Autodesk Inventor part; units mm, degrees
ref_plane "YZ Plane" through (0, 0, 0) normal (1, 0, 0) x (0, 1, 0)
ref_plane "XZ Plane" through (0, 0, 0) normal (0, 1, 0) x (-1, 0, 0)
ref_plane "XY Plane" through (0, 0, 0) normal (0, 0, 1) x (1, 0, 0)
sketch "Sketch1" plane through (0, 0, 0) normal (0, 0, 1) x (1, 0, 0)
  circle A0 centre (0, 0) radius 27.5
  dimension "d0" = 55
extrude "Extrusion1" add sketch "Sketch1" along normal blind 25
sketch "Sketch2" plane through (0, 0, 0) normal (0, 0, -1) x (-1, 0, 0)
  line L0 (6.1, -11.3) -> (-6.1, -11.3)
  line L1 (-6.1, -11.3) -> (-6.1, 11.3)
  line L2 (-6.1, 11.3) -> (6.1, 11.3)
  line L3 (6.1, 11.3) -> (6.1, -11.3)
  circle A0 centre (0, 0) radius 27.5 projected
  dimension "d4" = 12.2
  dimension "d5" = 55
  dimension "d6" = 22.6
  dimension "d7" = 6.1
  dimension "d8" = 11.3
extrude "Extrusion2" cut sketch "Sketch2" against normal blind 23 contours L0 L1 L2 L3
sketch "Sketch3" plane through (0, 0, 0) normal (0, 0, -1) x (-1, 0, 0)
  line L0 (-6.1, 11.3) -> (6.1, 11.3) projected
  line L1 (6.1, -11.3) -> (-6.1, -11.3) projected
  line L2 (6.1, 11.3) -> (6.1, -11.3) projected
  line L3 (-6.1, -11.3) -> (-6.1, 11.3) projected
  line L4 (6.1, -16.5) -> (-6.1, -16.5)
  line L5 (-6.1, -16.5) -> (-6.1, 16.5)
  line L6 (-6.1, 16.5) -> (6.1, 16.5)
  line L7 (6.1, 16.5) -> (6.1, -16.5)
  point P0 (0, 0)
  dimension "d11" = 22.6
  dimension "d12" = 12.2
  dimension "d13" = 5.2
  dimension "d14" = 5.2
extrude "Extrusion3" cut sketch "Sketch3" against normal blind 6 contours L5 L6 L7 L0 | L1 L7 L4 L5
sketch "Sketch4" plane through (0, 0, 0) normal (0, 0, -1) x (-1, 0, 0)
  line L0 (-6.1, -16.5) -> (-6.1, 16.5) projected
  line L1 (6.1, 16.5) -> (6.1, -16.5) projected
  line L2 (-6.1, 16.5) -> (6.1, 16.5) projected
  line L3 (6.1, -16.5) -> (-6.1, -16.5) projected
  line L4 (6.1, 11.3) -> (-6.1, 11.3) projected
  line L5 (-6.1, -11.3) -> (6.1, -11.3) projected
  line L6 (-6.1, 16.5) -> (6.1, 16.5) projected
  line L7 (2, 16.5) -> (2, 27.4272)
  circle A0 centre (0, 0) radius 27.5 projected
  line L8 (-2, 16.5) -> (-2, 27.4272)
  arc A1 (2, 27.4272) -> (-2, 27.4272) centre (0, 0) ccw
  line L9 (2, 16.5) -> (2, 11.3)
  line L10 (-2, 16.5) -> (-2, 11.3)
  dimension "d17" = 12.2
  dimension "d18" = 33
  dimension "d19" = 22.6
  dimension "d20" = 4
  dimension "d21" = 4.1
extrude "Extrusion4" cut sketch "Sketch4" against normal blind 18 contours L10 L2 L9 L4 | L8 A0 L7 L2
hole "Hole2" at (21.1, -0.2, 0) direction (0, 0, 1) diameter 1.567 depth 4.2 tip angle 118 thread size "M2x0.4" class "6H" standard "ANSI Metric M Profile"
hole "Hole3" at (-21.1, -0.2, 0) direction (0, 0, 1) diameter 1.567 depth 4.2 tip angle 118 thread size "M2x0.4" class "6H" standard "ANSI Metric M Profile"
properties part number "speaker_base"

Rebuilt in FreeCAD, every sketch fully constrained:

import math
import FreeCAD as App
import Part
import Sketcher
from FreeCAD import Vector
Q = App.Units.Quantity


def add_polygon(sketch, points):
    """Adds a closed chain of lines whose ends are joined by coincident constraints."""
    first, n = sketch.GeometryCount, len(points)
    for a, b in zip(points, points[1:] + points[:1]):
        sketch.addGeometry(Part.LineSegment(App.Vector(*a, 0), App.Vector(*b, 0)), False)
    for i in range(n):
        sketch.addConstraint(Sketcher.Constraint("Coincident", first + i, 2, first + (i + 1) % n, 1))

doc = App.newDocument("Part")
body = doc.addObject("PartDesign::Body", "Body")

sketch1 = body.newObject("Sketcher::SketchObject", "Sketch")
sketch1.AttachmentSupport = (doc.getObject("XY_Plane"), [""])
sketch1.MapMode = "FlatFace"
sketch1.addGeometry(Part.Circle(Vector(0, 0, 0), Vector(0, 0, 1), 27.5), False)
sketch1.addConstraint([
    Sketcher.Constraint("Coincident", 0, 3, -1, 1),
    Sketcher.Constraint("Diameter", 0, Q("55 mm")),
])
pad1 = body.newObject("PartDesign::Pad", "Pad")
pad1.Profile = sketch1
pad1.Length = 25

sketch2 = body.newObject("Sketcher::SketchObject", "Sketch001")
sketch2.AttachmentSupport = (doc.getObject("XY_Plane"), [""])
sketch2.MapMode = "FlatFace"
add_polygon(sketch2, [(6.1, -11.3), (-6.1, -11.3), (-6.1, 11.3), (6.1, 11.3)])
sketch2.addConstraint([
    Sketcher.Constraint("Horizontal", 0),
    Sketcher.Constraint("Vertical", 1),
    Sketcher.Constraint("Horizontal", 2),
    Sketcher.Constraint("Vertical", 3),
    Sketcher.Constraint("Symmetric", 0, 2, 2, 2, -1, 1),
    Sketcher.Constraint("DistanceX", 0, 2, 0, 1, Q("12.2 mm")),
    Sketcher.Constraint("DistanceY", 1, 1, 1, 2, Q("22.6 mm")),
])
pocket1 = body.newObject("PartDesign::Pocket", "Pocket")
pocket1.Profile = sketch2
pocket1.Length = 23
pocket1.Reversed = True

sketch3 = body.newObject("Sketcher::SketchObject", "Sketch002")
sketch3.AttachmentSupport = (doc.getObject("XY_Plane"), [""])
sketch3.MapMode = "FlatFace"
add_polygon(sketch3, [(6.1, 16.5), (6.1, 11.3), (-6.1, 11.3), (-6.1, 16.5)])
add_polygon(sketch3, [(-6.1, -11.3), (6.1, -11.3), (6.1, -16.5), (-6.1, -16.5)])
sketch3.addConstraint([
    Sketcher.Constraint("Vertical", 0),
    Sketcher.Constraint("Horizontal", 1),
    Sketcher.Constraint("Vertical", 2),
    Sketcher.Constraint("Horizontal", 3),
    Sketcher.Constraint("Horizontal", 4),
    Sketcher.Constraint("Vertical", 5),
    Sketcher.Constraint("Horizontal", 6),
    Sketcher.Constraint("Vertical", 7),
    Sketcher.Constraint("Symmetric", 1, 2, 4, 2, -1, 1),
    Sketcher.Constraint("Symmetric", 3, 2, 6, 2, -1, 1),
    Sketcher.Constraint("Vertical", 3, 2, 4, 2),
    Sketcher.Constraint("DistanceX", 1, 2, 1, 1, Q("12.2 mm")),
    Sketcher.Constraint("DistanceY", 0, 2, 0, 1, Q("5.2 mm")),
    Sketcher.Constraint("DistanceY", 4, 2, 0, 2, Q("22.6 mm")),
])
pocket2 = body.newObject("PartDesign::Pocket", "Pocket001")
pocket2.Profile = sketch3
pocket2.Length = 6
pocket2.Reversed = True

sketch4 = body.newObject("Sketcher::SketchObject", "Sketch003")
sketch4.AttachmentSupport = (doc.getObject("XY_Plane"), [""])
sketch4.MapMode = "FlatFace"
sketch4.addGeometry([
    Part.LineSegment(Vector(2, 11.3, 0), Vector(-2, 11.3, 0)),
    Part.LineSegment(Vector(-2, 11.3, 0), Vector(-2, 27.4272, 0)),
    Part.ArcOfCircle(Part.Circle(Vector(0, 0, 0), Vector(0, 0, 1), 27.5), math.radians(85.829356), math.radians(94.170644)),
    Part.LineSegment(Vector(2, 27.4272, 0), Vector(2, 11.3, 0)),
], False)
sketch4.addConstraint([
    Sketcher.Constraint("Coincident", 0, 2, 1, 1),
    Sketcher.Constraint("Coincident", 1, 2, 2, 2),
    Sketcher.Constraint("Coincident", 2, 1, 3, 1),
    Sketcher.Constraint("Coincident", 3, 2, 0, 1),
    Sketcher.Constraint("Horizontal", 0),
    Sketcher.Constraint("Vertical", 1),
    Sketcher.Constraint("Vertical", 3),
    Sketcher.Constraint("Coincident", 2, 3, -1, 1),
    Sketcher.Constraint("Horizontal", 1, 2, 2, 1),
    Sketcher.Constraint("DistanceX", 0, 2, 0, 1, Q("4 mm")),
    Sketcher.Constraint("Radius", 2, Q("27.5 mm")),
    Sketcher.Constraint("DistanceY", -1, 1, 0, 2, Q("11.3 mm")),
])
pocket3 = body.newObject("PartDesign::Pocket", "Pocket002")
pocket3.Profile = sketch4
pocket3.Length = 18
pocket3.Reversed = True

sketch5 = body.newObject("Sketcher::SketchObject", "Sketch004")
sketch5.AttachmentSupport = (doc.getObject("XY_Plane"), [""])
sketch5.MapMode = "FlatFace"
sketch5.addGeometry(Part.Circle(Vector(21.1, -0.2, 0), Vector(0, 0, 1), 0.7835), False)
sketch5.addConstraint([
    Sketcher.Constraint("Diameter", 0, Q("1.567 mm")),
    Sketcher.Constraint("DistanceX", -1, 1, 0, 3, Q("21.1 mm")),
    Sketcher.Constraint("DistanceY", 0, 3, -1, 1, Q("0.2 mm")),
])
doc.recompute()
hole = body.newObject("PartDesign::Hole", "Hole")
hole.Profile = sketch5
hole.ThreadType = "None"
hole.Diameter = 1.567
hole.DepthType = "Dimension"
hole.Depth = 4.2
hole.DrillPoint = "Angled"
hole.DrillPointAngle = 118
hole.Reversed = True

sketch6 = body.newObject("Sketcher::SketchObject", "Sketch005")
sketch6.AttachmentSupport = (doc.getObject("XY_Plane"), [""])
sketch6.MapMode = "FlatFace"
sketch6.addGeometry(Part.Circle(Vector(-21.1, -0.2, 0), Vector(0, 0, 1), 0.7835), False)
sketch6.addConstraint([
    Sketcher.Constraint("Diameter", 0, Q("1.567 mm")),
    Sketcher.Constraint("DistanceX", 0, 3, -1, 1, Q("21.1 mm")),
    Sketcher.Constraint("DistanceY", 0, 3, -1, 1, Q("0.2 mm")),
])
doc.recompute()
hole2 = body.newObject("PartDesign::Hole", "Hole001")
hole2.Profile = sketch6
hole2.ThreadType = "None"
hole2.Diameter = 1.567
hole2.DepthType = "Dimension"
hole2.Depth = 4.2
hole2.DrillPoint = "Angled"
hole2.DrillPointAngle = 118
hole2.Reversed = True

doc.recompute()
